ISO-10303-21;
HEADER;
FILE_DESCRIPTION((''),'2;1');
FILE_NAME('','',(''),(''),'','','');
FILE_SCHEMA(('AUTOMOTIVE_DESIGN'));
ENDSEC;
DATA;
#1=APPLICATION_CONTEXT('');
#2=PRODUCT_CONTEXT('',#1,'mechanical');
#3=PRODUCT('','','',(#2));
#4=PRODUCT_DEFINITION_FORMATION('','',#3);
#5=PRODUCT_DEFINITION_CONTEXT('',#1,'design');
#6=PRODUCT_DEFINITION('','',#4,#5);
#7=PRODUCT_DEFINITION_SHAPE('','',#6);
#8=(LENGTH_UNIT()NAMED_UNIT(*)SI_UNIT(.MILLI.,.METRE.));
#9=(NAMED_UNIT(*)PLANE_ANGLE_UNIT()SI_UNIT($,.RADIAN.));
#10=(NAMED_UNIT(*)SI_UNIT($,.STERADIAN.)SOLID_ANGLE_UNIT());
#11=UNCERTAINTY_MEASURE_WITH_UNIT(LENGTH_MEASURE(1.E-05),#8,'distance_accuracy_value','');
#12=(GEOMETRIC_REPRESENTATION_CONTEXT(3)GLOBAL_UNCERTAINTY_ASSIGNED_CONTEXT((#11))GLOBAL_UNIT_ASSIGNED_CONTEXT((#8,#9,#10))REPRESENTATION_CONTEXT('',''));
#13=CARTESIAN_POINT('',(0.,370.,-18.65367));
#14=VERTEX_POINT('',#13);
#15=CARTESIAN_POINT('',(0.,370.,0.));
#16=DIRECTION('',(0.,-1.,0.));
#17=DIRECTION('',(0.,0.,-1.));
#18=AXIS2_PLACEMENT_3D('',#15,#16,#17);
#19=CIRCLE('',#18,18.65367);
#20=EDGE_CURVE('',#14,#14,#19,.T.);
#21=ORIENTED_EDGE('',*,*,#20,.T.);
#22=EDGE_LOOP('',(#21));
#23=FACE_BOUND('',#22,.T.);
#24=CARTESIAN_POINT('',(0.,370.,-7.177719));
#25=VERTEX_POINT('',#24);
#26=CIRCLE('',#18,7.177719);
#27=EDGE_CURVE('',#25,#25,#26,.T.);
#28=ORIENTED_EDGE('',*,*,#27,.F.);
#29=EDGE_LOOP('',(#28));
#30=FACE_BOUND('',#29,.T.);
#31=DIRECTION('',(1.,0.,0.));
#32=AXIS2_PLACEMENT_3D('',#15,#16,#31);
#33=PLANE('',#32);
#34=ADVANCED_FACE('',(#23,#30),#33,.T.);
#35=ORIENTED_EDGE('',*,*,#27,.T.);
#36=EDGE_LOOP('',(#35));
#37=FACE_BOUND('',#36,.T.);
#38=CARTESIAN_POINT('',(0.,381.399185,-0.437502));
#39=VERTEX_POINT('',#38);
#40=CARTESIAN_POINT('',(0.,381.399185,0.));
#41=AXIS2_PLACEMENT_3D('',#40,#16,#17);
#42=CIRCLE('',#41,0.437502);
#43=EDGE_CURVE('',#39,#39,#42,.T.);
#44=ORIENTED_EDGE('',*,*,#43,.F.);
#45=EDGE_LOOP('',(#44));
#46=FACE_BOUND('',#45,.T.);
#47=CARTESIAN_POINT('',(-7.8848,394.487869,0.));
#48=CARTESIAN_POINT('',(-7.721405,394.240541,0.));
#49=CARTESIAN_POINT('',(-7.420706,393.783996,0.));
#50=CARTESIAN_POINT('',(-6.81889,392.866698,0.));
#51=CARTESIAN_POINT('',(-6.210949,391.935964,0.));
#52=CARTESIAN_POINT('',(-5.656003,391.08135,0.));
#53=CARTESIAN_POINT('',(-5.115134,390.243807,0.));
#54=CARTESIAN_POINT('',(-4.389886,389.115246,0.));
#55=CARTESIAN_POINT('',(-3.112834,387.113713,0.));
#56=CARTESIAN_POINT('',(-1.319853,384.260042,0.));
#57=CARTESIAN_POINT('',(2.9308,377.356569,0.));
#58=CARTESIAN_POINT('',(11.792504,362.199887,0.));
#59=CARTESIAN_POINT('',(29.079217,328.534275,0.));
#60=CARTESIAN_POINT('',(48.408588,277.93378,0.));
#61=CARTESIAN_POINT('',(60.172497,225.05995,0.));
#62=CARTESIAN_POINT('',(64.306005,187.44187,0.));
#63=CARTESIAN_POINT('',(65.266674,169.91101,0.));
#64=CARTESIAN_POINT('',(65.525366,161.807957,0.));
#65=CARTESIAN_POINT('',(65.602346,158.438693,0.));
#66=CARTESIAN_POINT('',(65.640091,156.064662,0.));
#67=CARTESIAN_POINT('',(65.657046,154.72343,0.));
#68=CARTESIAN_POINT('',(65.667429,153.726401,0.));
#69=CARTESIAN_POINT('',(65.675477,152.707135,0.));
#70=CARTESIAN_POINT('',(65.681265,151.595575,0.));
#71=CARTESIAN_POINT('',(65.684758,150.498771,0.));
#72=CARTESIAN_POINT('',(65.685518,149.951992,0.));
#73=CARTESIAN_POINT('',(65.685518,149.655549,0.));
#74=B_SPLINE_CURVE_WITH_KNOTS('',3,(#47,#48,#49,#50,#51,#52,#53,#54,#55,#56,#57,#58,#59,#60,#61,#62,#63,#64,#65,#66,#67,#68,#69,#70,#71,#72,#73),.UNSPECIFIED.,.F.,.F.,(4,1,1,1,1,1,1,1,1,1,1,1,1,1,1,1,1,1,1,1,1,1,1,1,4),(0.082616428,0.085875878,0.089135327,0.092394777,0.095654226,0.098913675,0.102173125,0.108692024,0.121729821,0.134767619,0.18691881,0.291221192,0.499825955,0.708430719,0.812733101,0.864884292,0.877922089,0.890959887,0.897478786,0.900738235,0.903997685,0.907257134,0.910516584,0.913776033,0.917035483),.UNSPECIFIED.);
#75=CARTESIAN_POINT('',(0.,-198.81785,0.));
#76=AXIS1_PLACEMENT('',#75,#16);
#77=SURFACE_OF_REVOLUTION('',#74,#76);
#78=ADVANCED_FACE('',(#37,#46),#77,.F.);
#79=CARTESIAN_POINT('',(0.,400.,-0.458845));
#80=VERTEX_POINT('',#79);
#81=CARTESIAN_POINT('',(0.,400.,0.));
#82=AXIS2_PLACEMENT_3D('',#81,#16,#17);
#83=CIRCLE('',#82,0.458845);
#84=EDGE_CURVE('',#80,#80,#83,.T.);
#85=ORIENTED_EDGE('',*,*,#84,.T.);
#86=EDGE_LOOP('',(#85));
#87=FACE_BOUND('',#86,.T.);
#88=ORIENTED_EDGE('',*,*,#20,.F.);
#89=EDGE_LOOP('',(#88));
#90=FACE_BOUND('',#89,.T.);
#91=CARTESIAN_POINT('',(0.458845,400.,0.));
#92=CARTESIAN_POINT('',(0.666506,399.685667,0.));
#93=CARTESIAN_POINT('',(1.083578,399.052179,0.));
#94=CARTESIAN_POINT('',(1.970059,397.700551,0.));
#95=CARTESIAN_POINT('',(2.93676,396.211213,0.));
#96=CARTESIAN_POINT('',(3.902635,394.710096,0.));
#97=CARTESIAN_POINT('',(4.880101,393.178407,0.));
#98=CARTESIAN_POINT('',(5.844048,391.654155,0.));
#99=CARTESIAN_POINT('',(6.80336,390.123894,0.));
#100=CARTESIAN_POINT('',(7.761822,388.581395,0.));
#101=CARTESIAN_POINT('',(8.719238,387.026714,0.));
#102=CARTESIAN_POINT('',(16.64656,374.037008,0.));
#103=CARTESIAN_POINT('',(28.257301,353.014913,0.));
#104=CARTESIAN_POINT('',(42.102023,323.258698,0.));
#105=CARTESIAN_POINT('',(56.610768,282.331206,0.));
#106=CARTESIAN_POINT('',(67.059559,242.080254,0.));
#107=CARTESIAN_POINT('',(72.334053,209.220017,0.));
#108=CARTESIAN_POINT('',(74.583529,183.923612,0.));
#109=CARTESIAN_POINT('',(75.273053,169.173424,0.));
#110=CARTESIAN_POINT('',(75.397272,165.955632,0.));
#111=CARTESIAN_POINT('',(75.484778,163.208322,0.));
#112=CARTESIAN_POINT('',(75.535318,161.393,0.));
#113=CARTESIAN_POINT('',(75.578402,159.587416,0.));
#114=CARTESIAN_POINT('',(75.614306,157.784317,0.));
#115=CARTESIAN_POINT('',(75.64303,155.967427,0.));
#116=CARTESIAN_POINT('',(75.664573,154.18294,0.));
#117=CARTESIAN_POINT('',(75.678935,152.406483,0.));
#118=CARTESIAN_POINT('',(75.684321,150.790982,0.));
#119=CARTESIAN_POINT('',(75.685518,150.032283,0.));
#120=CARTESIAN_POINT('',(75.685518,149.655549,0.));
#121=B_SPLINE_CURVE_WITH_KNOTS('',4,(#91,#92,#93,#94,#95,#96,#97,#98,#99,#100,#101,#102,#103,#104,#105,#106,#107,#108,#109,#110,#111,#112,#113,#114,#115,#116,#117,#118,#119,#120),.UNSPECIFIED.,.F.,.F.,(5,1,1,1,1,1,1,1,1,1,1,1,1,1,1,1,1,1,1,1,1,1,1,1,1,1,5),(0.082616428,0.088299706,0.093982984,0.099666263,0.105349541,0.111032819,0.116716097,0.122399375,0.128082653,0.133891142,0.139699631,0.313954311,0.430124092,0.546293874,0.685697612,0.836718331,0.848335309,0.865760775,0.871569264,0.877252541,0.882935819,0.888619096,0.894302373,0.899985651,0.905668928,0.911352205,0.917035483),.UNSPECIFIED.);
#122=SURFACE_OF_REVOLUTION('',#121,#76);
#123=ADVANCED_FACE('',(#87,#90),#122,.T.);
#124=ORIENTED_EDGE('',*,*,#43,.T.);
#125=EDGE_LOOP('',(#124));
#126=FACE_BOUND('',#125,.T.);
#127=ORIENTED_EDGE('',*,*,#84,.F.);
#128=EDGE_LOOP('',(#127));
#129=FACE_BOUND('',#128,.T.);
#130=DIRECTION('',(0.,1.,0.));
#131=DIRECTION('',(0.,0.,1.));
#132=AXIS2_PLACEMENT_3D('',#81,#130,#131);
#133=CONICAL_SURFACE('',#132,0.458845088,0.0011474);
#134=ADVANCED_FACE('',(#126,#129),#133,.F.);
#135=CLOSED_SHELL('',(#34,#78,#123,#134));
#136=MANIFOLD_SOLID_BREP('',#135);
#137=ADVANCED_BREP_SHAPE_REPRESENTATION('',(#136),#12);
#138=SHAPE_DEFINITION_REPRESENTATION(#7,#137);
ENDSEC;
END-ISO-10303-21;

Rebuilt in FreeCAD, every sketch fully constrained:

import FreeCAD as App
import Part
import Sketcher

V = App.Vector
Q = App.Units.Quantity

doc = App.newDocument("Part")
body = doc.addObject("PartDesign::Body", "Body")

sketch1 = doc.addObject("Sketcher::SketchObject", "Sketch")
body.addObject(sketch1)
sketch1.AttachmentSupport = (doc.XY_Plane, [""])
sketch1.MapMode = "FlatFace"
sketch1.addGeometry(Part.LineSegment(V(75.685518, -0.344451, 0), V(75.685518, 149.655549, 0)), False)
sketch1.addGeometry(Part.BSplineCurve([V(0.458845, 400, 0), V(0.666506, 399.685667, 0), V(1.083578, 399.052179, 0), V(1.970059, 397.700551, 0), V(2.93676, 396.211213, 0), V(3.902635, 394.710096, 0), V(4.880101, 393.178407, 0), V(5.844048, 391.654155, 0), V(6.80336, 390.123894, 0), V(7.761822, 388.581395, 0), V(8.719238, 387.026714, 0), V(16.64656, 374.037008, 0), V(28.257301, 353.014913, 0), V(42.102023, 323.258698, 0), V(56.610768, 282.331206, 0), V(67.059559, 242.080254, 0), V(72.334053, 209.220017, 0), V(74.583529, 183.923612, 0), V(75.273053, 169.173424, 0), V(75.397272, 165.955632, 0), V(75.484778, 163.208322, 0), V(75.535318, 161.393, 0), V(75.578402, 159.587416, 0), V(75.614306, 157.784317, 0), V(75.64303, 155.967427, 0), V(75.664573, 154.18294, 0), V(75.678935, 152.406483, 0), V(75.684321, 150.790982, 0), V(75.685518, 150.032283, 0), V(75.685518, 149.655549, 0)], [5, 1, 1, 1, 1, 1, 1, 1, 1, 1, 1, 1, 1, 1, 1, 1, 1, 1, 1, 1, 1, 1, 1, 1, 1, 1, 5], [0.082616428, 0.088299706, 0.093982984, 0.099666263, 0.105349541, 0.111032819, 0.116716097, 0.122399375, 0.128082653, 0.133891142, 0.139699631, 0.313954311, 0.430124092, 0.546293874, 0.685697612, 0.836718331, 0.848335309, 0.865760775, 0.871569264, 0.877252541, 0.882935819, 0.888619096, 0.894302373, 0.899985651, 0.905668928, 0.911352205, 0.917035483], False, 4, [1, 1, 1, 1, 1, 1, 1, 1, 1, 1, 1, 1, 1, 1, 1, 1, 1, 1, 1, 1, 1, 1, 1, 1, 1, 1, 1, 1, 1, 1], False), False)
sketch1.addGeometry(Part.LineSegment(V(0.458845, 400, 0), V(0.437509, 381.399188, 0)), False)
sketch1.addGeometry(Part.BSplineCurve([V(0.437509, 381.399188, 0), V(0.558529, 381.201299, 0), V(3.495431, 376.390849, 0), V(11.792504, 362.199887, 0), V(29.079217, 328.534275, 0), V(48.408588, 277.93378, 0), V(60.172497, 225.05995, 0), V(64.306005, 187.44187, 0), V(65.266674, 169.91101, 0), V(65.525366, 161.807957, 0), V(65.602346, 158.438693, 0), V(65.640091, 156.064662, 0), V(65.657046, 154.72343, 0), V(65.667429, 153.726401, 0), V(65.675477, 152.707135, 0), V(65.681265, 151.595575, 0), V(65.684758, 150.498771, 0), V(65.685518, 149.951992, 0), V(65.685518, 149.655549, 0)], [4, 1, 1, 1, 1, 1, 1, 1, 1, 1, 1, 1, 1, 1, 1, 1, 4], [0.132529105, 0.134767619, 0.18691881, 0.291221192, 0.499825955, 0.708430719, 0.812733101, 0.864884292, 0.877922089, 0.890959887, 0.897478786, 0.900738235, 0.903997685, 0.907257134, 0.910516584, 0.913776033, 0.917035483], False, 3, [1, 1, 1, 1, 1, 1, 1, 1, 1, 1, 1, 1, 1, 1, 1, 1, 1, 1, 1], False), False)
sketch1.addGeometry(Part.LineSegment(V(65.685518, 149.655549, 0), V(65.685518, -0.344451, 0)), False)
sketch1.addGeometry(Part.LineSegment(V(65.685518, -0.344451, 0), V(75.685518, -0.344451, 0)), False)
sketch1.addConstraint(Sketcher.Constraint("Block", 1))
sketch1.addConstraint(Sketcher.Constraint("Block", 3))
sketch1.addConstraint(Sketcher.Constraint("Coincident", 0, 2, 1, 2))
sketch1.addConstraint(Sketcher.Constraint("Coincident", 1, 1, 2, 1))
sketch1.addConstraint(Sketcher.Constraint("Coincident", 2, 2, 3, 1))
sketch1.addConstraint(Sketcher.Constraint("Coincident", 3, 2, 4, 1))
sketch1.addConstraint(Sketcher.Constraint("Coincident", 4, 2, 5, 1))
sketch1.addConstraint(Sketcher.Constraint("Coincident", 5, 2, 0, 1))
sketch1.addConstraint(Sketcher.Constraint("Vertical", 0))
sketch1.addConstraint(Sketcher.Constraint("Vertical", 4))
sketch1.addConstraint(Sketcher.Constraint("Horizontal", 5))
sketch1.addConstraint(Sketcher.Constraint("DistanceY", 0, 1, 0, 2, Q("150 mm")))
revolution = doc.addObject("PartDesign::Revolution", "Revolution")
body.addObject(revolution)
revolution.Profile = sketch1
revolution.ReferenceAxis = (sketch1, ["V_Axis"])
revolution.Angle = 360

sketch2 = doc.addObject("Sketcher::SketchObject", "Sketch001")
body.addObject(sketch2)
sketch2.AttachmentSupport = (doc.XZ_Plane, [""])
sketch2.MapMode = "FlatFace"
sketch2.AttachmentOffset = App.Placement(V(0, 0, 150.344451), App.Rotation())
sketch2.addGeometry(Part.Circle(V(0, 0, 0), V(0, 0, 1), 65.685518), False)
sketch2.addGeometry(Part.Circle(V(0, 0, 0), V(0, 0, 1), 57.685518), False)
sketch2.addConstraint(Sketcher.Constraint("Coincident", 0, 3, -1, 1))
sketch2.addConstraint(Sketcher.Constraint("Coincident", 1, 3, -1, 1))
sketch2.addConstraint(Sketcher.Constraint("Diameter", 0, Q("131.371037 mm")))
sketch2.addConstraint(Sketcher.Constraint("Diameter", 1, Q("115.371037 mm")))
pad1 = doc.addObject("PartDesign::Pad", "Pad")
body.addObject(pad1)
pad1.Profile = sketch2
pad1.Length = 300
pad1.Reversed = True

sketch3 = doc.addObject("Sketcher::SketchObject", "Sketch002")
body.addObject(sketch3)
sketch3.AttachmentSupport = (doc.XZ_Plane, [""])
sketch3.MapMode = "FlatFace"
sketch3.AttachmentOffset = App.Placement(V(0, 0, -370), App.Rotation())
sketch3.addGeometry(Part.Circle(V(0, 0, 0), V(0, 0, 1), 120.726601), False)
sketch3.addConstraint(Sketcher.Constraint("Coincident", 0, 3, -1, 1))
sketch3.addConstraint(Sketcher.Constraint("Diameter", 0, Q("241.453202 mm")))
pocket1 = doc.addObject("PartDesign::Pocket", "Pocket")
body.addObject(pocket1)
pocket1.Profile = sketch3
pocket1.Type = "ThroughAll"
pocket1.Reversed = True

doc.recompute()
